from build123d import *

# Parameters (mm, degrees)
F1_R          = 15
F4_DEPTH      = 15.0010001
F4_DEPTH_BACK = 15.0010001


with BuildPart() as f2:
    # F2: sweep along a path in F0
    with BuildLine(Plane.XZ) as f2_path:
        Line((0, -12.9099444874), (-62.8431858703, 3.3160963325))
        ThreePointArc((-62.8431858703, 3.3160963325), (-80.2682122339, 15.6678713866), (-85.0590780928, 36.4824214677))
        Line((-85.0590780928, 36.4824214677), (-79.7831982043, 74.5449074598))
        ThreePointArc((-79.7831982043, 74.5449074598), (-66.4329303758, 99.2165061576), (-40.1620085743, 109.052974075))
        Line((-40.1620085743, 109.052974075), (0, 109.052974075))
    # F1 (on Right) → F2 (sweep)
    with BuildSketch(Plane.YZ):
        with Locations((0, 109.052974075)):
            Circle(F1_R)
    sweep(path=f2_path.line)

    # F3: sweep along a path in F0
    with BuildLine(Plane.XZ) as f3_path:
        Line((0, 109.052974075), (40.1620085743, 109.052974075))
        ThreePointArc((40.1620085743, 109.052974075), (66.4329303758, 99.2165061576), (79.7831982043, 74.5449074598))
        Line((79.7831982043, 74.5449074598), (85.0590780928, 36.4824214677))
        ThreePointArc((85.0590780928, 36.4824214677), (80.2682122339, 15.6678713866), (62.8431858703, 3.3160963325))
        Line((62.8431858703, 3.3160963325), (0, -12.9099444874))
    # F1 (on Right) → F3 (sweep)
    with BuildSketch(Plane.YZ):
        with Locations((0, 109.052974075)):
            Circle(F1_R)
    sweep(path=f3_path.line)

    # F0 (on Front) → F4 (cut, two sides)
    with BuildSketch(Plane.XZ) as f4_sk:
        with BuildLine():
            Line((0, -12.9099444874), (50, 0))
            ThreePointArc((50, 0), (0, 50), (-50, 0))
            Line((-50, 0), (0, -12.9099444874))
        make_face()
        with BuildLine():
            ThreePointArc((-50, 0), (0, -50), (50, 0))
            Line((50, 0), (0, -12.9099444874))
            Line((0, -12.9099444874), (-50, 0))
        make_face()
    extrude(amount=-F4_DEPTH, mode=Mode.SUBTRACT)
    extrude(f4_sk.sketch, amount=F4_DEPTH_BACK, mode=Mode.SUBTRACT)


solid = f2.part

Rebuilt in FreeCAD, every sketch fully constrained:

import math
import FreeCAD as App
import Part
import Sketcher
from FreeCAD import Vector
Q = App.Units.Quantity

doc = App.newDocument("Part")
body = doc.addObject("PartDesign::Body", "Body")

# Sketch on YZ plane
sketch1 = doc.addObject("Sketcher::SketchObject", "Sketch")
body.addObject(sketch1)
sketch1.AttachmentSupport = (doc.YZ_Plane, [""])
sketch1.MapMode = "FlatFace"
sketch1.addGeometry(Part.Circle(Vector(0, 109, 0), Vector(0, 0, 1), 15), False)
sketch1.addConstraint(Sketcher.Constraint("PointOnObject", 0, 3, -2))
sketch1.addConstraint(Sketcher.Constraint("Diameter", 0, Q("30 mm")))
sketch1.addConstraint(Sketcher.Constraint("DistanceY", -1, 1, 0, 3, Q("109.052974 mm")))

# Sketch on XZ plane
sketch2 = doc.addObject("Sketcher::SketchObject", "Sketch001")
body.addObject(sketch2)
sketch2.AttachmentSupport = (doc.XZ_Plane, [""])
sketch2.MapMode = "FlatFace"
sketch2.addGeometry(Part.LineSegment(Vector(0, -12.909944, 0), Vector(-62.843186, 3.316096, 0)), False)
sketch2.addGeometry(Part.ArcOfCircle(Part.Circle(Vector(-55.343186, 32.363471, 0), Vector(0, 0, 1), 30), math.radians(172.108457), math.radians(255.522488)), False)
sketch2.addGeometry(Part.LineSegment(Vector(-85.059078, 36.482421, 0), Vector(-79.783198, 74.544907, 0)), False)
sketch2.addGeometry(Part.ArcOfCircle(Part.Circle(Vector(-40.162009, 69.052974, 0), Vector(0, 0, 1), 40), math.radians(90), math.radians(172.108457)), False)
sketch2.addGeometry(Part.LineSegment(Vector(-40.162009, 109.052974, 0), Vector(0, 109.052974, 0)), False)
sketch2.addConstraint(Sketcher.Constraint("Coincident", 0, 2, 1, 2))
sketch2.addConstraint(Sketcher.Constraint("Coincident", 1, 1, 2, 1))
sketch2.addConstraint(Sketcher.Constraint("Coincident", 2, 2, 3, 2))
sketch2.addConstraint(Sketcher.Constraint("Coincident", 3, 1, 4, 1))
sketch2.addConstraint(Sketcher.Constraint("Horizontal", 4))
sketch2.addConstraint(Sketcher.Constraint("PointOnObject", 0, 1, -2))
sketch2.addConstraint(Sketcher.Constraint("PointOnObject", 4, 2, -2))
sketch2.addConstraint(Sketcher.Constraint("Radius", 1, Q("30 mm")))
sketch2.addConstraint(Sketcher.Constraint("Radius", 3, Q("40 mm")))
sketch2.addConstraint(Sketcher.Constraint("DistanceX", 0, 2, 1, 3, Q("7.5 mm")))
sketch2.addConstraint(Sketcher.Constraint("DistanceX", 4, 1, 4, 2, Q("40.162009 mm")))
sketch2.addConstraint(Sketcher.Constraint("DistanceX", 2, 2, -1, 1, Q("79.783198 mm")))
sketch2.addConstraint(Sketcher.Constraint("DistanceY", -1, 1, 1, 3, Q("32.363471 mm")))
sketch2.addConstraint(Sketcher.Constraint("DistanceX", 3, 3, -1, 1, Q("40.162009 mm")))
sketch2.addConstraint(Sketcher.Constraint("DistanceX", 1, 1, -1, 1, Q("85.059078 mm")))
sketch2.addConstraint(Sketcher.Constraint("DistanceY", -1, 1, 1, 1, Q("36.482421 mm")))
sketch2.addConstraint(Sketcher.Constraint("DistanceY", 0, 1, 3, 3, Q("81.962919 mm")))
sketch2.addConstraint(Sketcher.Constraint("DistanceY", 0, 1, 0, 2, Q("16.226041 mm")))
doc.recompute()

additivepipe = doc.addObject("PartDesign::AdditivePipe", "AdditivePipe")
body.addObject(additivepipe)
additivepipe.Profile = sketch1
additivepipe.Spine = (sketch2, ["Edge1", "Edge2", "Edge3", "Edge4", "Edge5"])

# Sketch on YZ plane
sketch3 = doc.addObject("Sketcher::SketchObject", "Sketch002")
body.addObject(sketch3)
sketch3.AttachmentSupport = (doc.YZ_Plane, [""])
sketch3.MapMode = "FlatFace"
sketch3.addGeometry(Part.Circle(Vector(0, 109, 0), Vector(0, 0, 1), 15), False)
sketch3.addConstraint(Sketcher.Constraint("PointOnObject", 0, 3, -2))
sketch3.addConstraint(Sketcher.Constraint("Diameter", 0, Q("30 mm")))
sketch3.addConstraint(Sketcher.Constraint("DistanceY", -1, 1, 0, 3, Q("109.052974 mm")))

# Sketch on XZ plane
sketch4 = doc.addObject("Sketcher::SketchObject", "Sketch003")
body.addObject(sketch4)
sketch4.AttachmentSupport = (doc.XZ_Plane, [""])
sketch4.MapMode = "FlatFace"
sketch4.addGeometry(Part.LineSegment(Vector(0, 109.052974, 0), Vector(40.162009, 109.052974, 0)), False)
sketch4.addGeometry(Part.ArcOfCircle(Part.Circle(Vector(40.162009, 69.052974, 0), Vector(0, 0, 1), 40), math.radians(7.891543), math.radians(90)), False)
sketch4.addGeometry(Part.LineSegment(Vector(79.783198, 74.544907, 0), Vector(85.059078, 36.482421, 0)), False)
sketch4.addGeometry(Part.ArcOfCircle(Part.Circle(Vector(55.343186, 32.363471, 0), Vector(0, 0, 1), 30), math.radians(-75.522488), math.radians(7.891543)), False)
sketch4.addGeometry(Part.LineSegment(Vector(62.843186, 3.316096, 0), Vector(0, -12.909944, 0)), False)
sketch4.addConstraint(Sketcher.Constraint("Coincident", 0, 2, 1, 2))
sketch4.addConstraint(Sketcher.Constraint("Coincident", 1, 1, 2, 1))
sketch4.addConstraint(Sketcher.Constraint("Coincident", 2, 2, 3, 2))
sketch4.addConstraint(Sketcher.Constraint("Coincident", 3, 1, 4, 1))
sketch4.addConstraint(Sketcher.Constraint("Horizontal", 0))
sketch4.addConstraint(Sketcher.Constraint("PointOnObject", 0, 1, -2))
sketch4.addConstraint(Sketcher.Constraint("PointOnObject", 4, 2, -2))
sketch4.addConstraint(Sketcher.Constraint("Radius", 1, Q("40 mm")))
sketch4.addConstraint(Sketcher.Constraint("Radius", 3, Q("30 mm")))
sketch4.addConstraint(Sketcher.Constraint("DistanceX", 3, 3, 3, 1, Q("7.5 mm")))
sketch4.addConstraint(Sketcher.Constraint("DistanceX", 0, 1, 0, 2, Q("40.162009 mm")))
sketch4.addConstraint(Sketcher.Constraint("DistanceX", -1, 1, 1, 1, Q("79.783198 mm")))
sketch4.addConstraint(Sketcher.Constraint("DistanceX", -1, 1, 1, 3, Q("40.162009 mm")))
sketch4.addConstraint(Sketcher.Constraint("DistanceY", -1, 1, 3, 3, Q("32.363471 mm")))
sketch4.addConstraint(Sketcher.Constraint("DistanceX", -1, 1, 2, 2, Q("85.059078 mm")))
sketch4.addConstraint(Sketcher.Constraint("DistanceY", -1, 1, 2, 2, Q("36.482421 mm")))
sketch4.addConstraint(Sketcher.Constraint("DistanceY", 3, 1, 1, 1, Q("71.228811 mm")))
sketch4.addConstraint(Sketcher.Constraint("DistanceY", 4, 2, 3, 1, Q("16.226041 mm")))
doc.recompute()

additivepipe2 = doc.addObject("PartDesign::AdditivePipe", "AdditivePipe001")
body.addObject(additivepipe2)
additivepipe2.Profile = sketch3
additivepipe2.Spine = (sketch4, ["Edge1", "Edge2", "Edge3", "Edge4", "Edge5"])

# Sketch on XZ plane
sketch5 = doc.addObject("Sketcher::SketchObject", "Sketch004")
body.addObject(sketch5)
sketch5.AttachmentSupport = (doc.XZ_Plane, [""])
sketch5.MapMode = "FlatFace"
sketch5.addGeometry(Part.Circle(Vector(0, 0, 0), Vector(0, 0, 1), 50), False)
sketch5.addConstraint(Sketcher.Constraint("Coincident", 0, 3, -1, 1))
sketch5.addConstraint(Sketcher.Constraint("Diameter", 0, Q("100 mm")))
pocket1 = doc.addObject("PartDesign::Pocket", "Pocket")
body.addObject(pocket1)
pocket1.Profile = sketch5
pocket1.Type = "ThroughAll"
pocket1.Midplane = True

doc.recompute()
